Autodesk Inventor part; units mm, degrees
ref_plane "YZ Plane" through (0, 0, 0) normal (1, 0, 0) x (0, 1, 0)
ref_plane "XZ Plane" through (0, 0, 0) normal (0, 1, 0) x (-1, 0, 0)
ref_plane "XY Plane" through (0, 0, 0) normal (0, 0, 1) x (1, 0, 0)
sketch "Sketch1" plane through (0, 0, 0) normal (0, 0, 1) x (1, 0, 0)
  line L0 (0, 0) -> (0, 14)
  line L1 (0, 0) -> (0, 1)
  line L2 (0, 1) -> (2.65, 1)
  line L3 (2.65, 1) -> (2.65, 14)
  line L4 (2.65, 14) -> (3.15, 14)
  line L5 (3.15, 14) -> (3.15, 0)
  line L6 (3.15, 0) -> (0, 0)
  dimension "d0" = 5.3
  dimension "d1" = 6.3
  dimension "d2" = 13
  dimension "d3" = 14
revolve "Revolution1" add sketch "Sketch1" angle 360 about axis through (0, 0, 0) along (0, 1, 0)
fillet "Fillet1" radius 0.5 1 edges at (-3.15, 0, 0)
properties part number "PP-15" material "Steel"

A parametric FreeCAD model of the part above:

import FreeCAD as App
import Part
import Sketcher
Q = App.Units.Quantity


def edges_at(feature, points):
    """Names of the edges that pass closest to the given points."""
    edges = feature.Shape.Edges
    near = lambda p: min(range(len(edges)), key=lambda i: edges[i].distToShape(Part.Vertex(*p))[0])
    return sorted({f"Edge{near(p) + 1}" for p in points})


def add_polygon(sketch, points):
    """Adds a closed chain of lines whose ends are joined by coincident constraints."""
    first, n = sketch.GeometryCount, len(points)
    for a, b in zip(points, points[1:] + points[:1]):
        sketch.addGeometry(Part.LineSegment(App.Vector(*a, 0), App.Vector(*b, 0)), False)
    for i in range(n):
        sketch.addConstraint(Sketcher.Constraint("Coincident", first + i, 2, first + (i + 1) % n, 1))

doc = App.newDocument("Part")
params = doc.addObject("Spreadsheet::Sheet", "Params")
for row, (alias, value) in enumerate([
    ("sketch1_height", "14 mm"),
    ("sketch1_height2", "13 mm"),
    ("sketch1_width", "0.5 mm"),
    ("sketch1_width2", "3.15 mm"),
    ("revolution_angle", "360 deg"),
    ("fillet_radius", "0.5 mm"),
], start=1):
    params.set(f"A{row}", alias)
    params.set(f"B{row}", "=" + value)
    params.setAlias(f"B{row}", alias)

body = doc.addObject("PartDesign::Body", "Body")

sketch1 = body.newObject("Sketcher::SketchObject", "Sketch")
sketch1.AttachmentSupport = (doc.getObject("XY_Plane"), [""])
sketch1.MapMode = "FlatFace"
add_polygon(sketch1, [(0, 1), (0, 0), (3.15, 0), (3.15, 14), (2.65, 14), (2.65, 1)])
sketch1.addConstraint([
    Sketcher.Constraint("Vertical", 0),
    Sketcher.Constraint("Horizontal", 1),
    Sketcher.Constraint("Vertical", 2),
    Sketcher.Constraint("Horizontal", 3),
    Sketcher.Constraint("Vertical", 4),
    Sketcher.Constraint("Horizontal", 5),
    Sketcher.Constraint("Coincident", 0, 2, -1, 1),
    Sketcher.Constraint("DistanceY", 2, 1, 2, 2, Q("14 mm")),
    Sketcher.Constraint("DistanceY", 4, 2, 4, 1, Q("13 mm")),
    Sketcher.Constraint("DistanceX", 3, 2, 3, 1, Q("0.5 mm")),
    Sketcher.Constraint("DistanceX", 1, 1, 1, 2, Q("3.15 mm")),
])
sketch1.setExpression("Constraints[13]", "Params.sketch1_height")
sketch1.setExpression("Constraints[14]", "Params.sketch1_height2")
sketch1.setExpression("Constraints[15]", "Params.sketch1_width")
sketch1.setExpression("Constraints[16]", "Params.sketch1_width2")
revolution = body.newObject("PartDesign::Revolution", "Revolution")
revolution.Profile = sketch1
revolution.ReferenceAxis = (sketch1, ["V_Axis"])
revolution.setExpression("Angle", "Params.revolution_angle")
doc.recompute()

fillet = body.newObject("PartDesign::Fillet", "Fillet")
fillet.Base = (revolution, edges_at(revolution, [(-3.15, 0, 0)]))
fillet.setExpression("Radius", "Params.fillet_radius")

doc.recompute()
